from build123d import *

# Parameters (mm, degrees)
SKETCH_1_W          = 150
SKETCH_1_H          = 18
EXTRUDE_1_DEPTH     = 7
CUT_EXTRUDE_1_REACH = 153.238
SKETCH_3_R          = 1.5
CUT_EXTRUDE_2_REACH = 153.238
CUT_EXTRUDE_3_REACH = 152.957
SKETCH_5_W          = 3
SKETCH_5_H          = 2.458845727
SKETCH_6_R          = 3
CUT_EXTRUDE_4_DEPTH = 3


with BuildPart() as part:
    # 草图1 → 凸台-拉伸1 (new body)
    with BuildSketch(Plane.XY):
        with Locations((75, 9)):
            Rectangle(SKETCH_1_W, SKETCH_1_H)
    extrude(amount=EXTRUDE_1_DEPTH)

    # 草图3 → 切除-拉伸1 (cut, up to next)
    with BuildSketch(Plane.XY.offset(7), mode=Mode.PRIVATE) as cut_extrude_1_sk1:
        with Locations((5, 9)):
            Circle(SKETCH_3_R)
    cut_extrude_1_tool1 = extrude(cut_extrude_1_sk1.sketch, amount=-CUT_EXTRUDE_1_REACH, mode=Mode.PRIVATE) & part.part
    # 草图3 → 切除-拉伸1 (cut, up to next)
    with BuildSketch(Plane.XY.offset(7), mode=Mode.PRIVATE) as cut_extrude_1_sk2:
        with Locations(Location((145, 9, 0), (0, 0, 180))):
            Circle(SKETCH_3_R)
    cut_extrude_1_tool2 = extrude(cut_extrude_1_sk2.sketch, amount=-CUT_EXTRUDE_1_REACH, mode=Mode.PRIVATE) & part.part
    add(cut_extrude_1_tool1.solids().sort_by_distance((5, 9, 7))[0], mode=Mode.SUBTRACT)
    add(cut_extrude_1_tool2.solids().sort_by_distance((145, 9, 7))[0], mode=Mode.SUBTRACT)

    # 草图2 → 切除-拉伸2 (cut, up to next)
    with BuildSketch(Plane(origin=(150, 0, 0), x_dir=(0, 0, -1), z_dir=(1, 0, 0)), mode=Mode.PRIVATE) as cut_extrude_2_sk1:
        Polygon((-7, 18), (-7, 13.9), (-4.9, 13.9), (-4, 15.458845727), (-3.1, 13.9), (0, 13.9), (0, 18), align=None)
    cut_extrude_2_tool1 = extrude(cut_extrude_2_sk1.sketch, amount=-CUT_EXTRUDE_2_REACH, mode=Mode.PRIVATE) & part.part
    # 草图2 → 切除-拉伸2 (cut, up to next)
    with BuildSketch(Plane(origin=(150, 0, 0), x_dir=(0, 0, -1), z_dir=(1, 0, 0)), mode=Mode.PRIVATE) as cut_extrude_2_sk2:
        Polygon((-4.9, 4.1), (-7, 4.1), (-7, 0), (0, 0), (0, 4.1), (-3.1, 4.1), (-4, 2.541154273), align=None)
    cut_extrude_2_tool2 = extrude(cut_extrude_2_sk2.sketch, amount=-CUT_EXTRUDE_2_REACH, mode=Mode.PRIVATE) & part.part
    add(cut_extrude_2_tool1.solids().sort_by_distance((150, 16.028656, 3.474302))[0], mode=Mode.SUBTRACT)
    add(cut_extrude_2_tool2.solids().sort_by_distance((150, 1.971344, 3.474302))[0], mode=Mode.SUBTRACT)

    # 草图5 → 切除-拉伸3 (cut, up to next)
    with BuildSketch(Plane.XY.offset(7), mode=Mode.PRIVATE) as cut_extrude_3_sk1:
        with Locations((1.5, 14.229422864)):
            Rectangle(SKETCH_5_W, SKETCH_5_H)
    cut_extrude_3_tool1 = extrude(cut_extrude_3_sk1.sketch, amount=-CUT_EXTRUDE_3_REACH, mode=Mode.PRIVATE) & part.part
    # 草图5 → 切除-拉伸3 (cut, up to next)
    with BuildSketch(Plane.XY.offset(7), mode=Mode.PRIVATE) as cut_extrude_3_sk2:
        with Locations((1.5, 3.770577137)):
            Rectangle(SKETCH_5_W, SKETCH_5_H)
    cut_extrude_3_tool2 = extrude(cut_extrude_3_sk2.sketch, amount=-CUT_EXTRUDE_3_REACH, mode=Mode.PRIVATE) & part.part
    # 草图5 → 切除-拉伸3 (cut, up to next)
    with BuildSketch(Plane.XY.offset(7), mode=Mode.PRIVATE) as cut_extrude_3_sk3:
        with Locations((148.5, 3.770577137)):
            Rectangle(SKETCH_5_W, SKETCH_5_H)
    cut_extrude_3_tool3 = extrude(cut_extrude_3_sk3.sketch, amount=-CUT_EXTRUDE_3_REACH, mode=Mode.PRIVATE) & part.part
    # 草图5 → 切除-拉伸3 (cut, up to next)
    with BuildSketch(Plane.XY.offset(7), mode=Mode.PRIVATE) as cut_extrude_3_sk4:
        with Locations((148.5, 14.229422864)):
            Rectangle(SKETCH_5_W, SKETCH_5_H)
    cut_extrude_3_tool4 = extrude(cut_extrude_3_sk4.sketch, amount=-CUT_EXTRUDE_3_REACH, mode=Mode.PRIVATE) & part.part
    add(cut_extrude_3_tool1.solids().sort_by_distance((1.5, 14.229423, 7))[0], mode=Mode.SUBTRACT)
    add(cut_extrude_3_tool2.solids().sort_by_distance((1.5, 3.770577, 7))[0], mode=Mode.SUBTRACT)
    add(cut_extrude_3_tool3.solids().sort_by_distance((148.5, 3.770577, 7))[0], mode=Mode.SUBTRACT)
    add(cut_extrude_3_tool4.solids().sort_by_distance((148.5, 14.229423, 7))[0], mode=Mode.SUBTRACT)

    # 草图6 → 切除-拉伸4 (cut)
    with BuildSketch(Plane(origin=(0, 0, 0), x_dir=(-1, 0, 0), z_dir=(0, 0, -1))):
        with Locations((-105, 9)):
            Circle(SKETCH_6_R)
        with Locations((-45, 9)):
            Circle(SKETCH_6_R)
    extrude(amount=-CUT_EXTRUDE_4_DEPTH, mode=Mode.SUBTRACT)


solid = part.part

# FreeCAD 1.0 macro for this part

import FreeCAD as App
import Part
import Sketcher
Q = App.Units.Quantity


def add_polygon(sketch, points):
    """Adds a closed chain of lines whose ends are joined by coincident constraints."""
    first, n = sketch.GeometryCount, len(points)
    for a, b in zip(points, points[1:] + points[:1]):
        sketch.addGeometry(Part.LineSegment(App.Vector(*a, 0), App.Vector(*b, 0)), False)
    for i in range(n):
        sketch.addConstraint(Sketcher.Constraint("Coincident", first + i, 2, first + (i + 1) % n, 1))

doc = App.newDocument("Part")
params = doc.addObject("Spreadsheet::Sheet", "Params")
for row, (alias, value) in enumerate([
    ("sketch1_width", "150 mm"),
    ("sketch1_height", "18 mm"),
    ("pad1_length", "7 mm"),
    ("sketch2_diameter", "3 mm"),
    ("sketch3_diameter", "3 mm"),
    ("sketch4_height", "7 mm"),
    ("sketch4_width", "4.1 mm"),
    ("sketch4_height2", "2.1 mm"),
    ("sketch4_height3", "3.1 mm"),
    ("sketch5_height", "7 mm"),
    ("sketch5_width", "4.1 mm"),
    ("sketch5_height2", "2.1 mm"),
    ("sketch5_height3", "3.1 mm"),
    ("sketch6_width", "3 mm"),
    ("pocket5_length", "7 mm"),
    ("sketch7_width", "3 mm"),
    ("pocket6_length", "7 mm"),
    ("sketch8_width", "3 mm"),
    ("pocket7_length", "7 mm"),
    ("sketch9_width", "3 mm"),
    ("pocket8_length", "7 mm"),
    ("sketch10_diameter", "6 mm"),
    ("pocket9_length", "3 mm"),
], start=1):
    params.set(f"A{row}", alias)
    params.set(f"B{row}", "=" + value)
    params.setAlias(f"B{row}", alias)

body = doc.addObject("PartDesign::Body", "Body")

sketch1 = doc.addObject("Sketcher::SketchObject", "Sketch")
body.addObject(sketch1)
sketch1.AttachmentSupport = (doc.XY_Plane, [""])
sketch1.MapMode = "FlatFace"
add_polygon(sketch1, [(0, 18), (0, 0), (150, 0), (150, 18)])
sketch1.addConstraint(Sketcher.Constraint("Vertical", 0))
sketch1.addConstraint(Sketcher.Constraint("Horizontal", 1))
sketch1.addConstraint(Sketcher.Constraint("Vertical", 2))
sketch1.addConstraint(Sketcher.Constraint("Horizontal", 3))
sketch1.addConstraint(Sketcher.Constraint("Coincident", 0, 2, -1, 1))
sketch1.addConstraint(Sketcher.Constraint("DistanceX", 1, 1, 1, 2, 150.0))
sketch1.addConstraint(Sketcher.Constraint("DistanceY", 0, 2, 0, 1, 18.0))
sketch1.setExpression("Constraints[9]", "Params.sketch1_width")
sketch1.setExpression("Constraints[10]", "Params.sketch1_height")
pad1 = doc.addObject("PartDesign::Pad", "Pad")
body.addObject(pad1)
pad1.Profile = sketch1
pad1.setExpression("Length", "Params.pad1_length")

sketch2 = doc.addObject("Sketcher::SketchObject", "Sketch001")
body.addObject(sketch2)
sketch2.AttachmentSupport = (doc.XY_Plane, [""])
sketch2.MapMode = "FlatFace"
sketch2.AttachmentOffset = App.Placement(App.Vector(0, 0, 7), App.Rotation())
sketch2.addGeometry(Part.Circle(App.Vector(5, 9, 0), App.Vector(0, 0, 1), 1.5), False)
sketch2.addConstraint(Sketcher.Constraint("Diameter", 0, 3.0))
sketch2.addConstraint(Sketcher.Constraint("DistanceX", -1, 1, 0, 3, 5.0))
sketch2.addConstraint(Sketcher.Constraint("DistanceY", -1, 1, 0, 3, 9.0))
sketch2.setExpression("Constraints[0]", "Params.sketch2_diameter")
pocket1 = doc.addObject("PartDesign::Pocket", "Pocket")
body.addObject(pocket1)
pocket1.Profile = sketch2
pocket1.Type = "UpToFirst"

sketch3 = doc.addObject("Sketcher::SketchObject", "Sketch002")
body.addObject(sketch3)
sketch3.AttachmentSupport = (doc.XY_Plane, [""])
sketch3.MapMode = "FlatFace"
sketch3.AttachmentOffset = App.Placement(App.Vector(0, 0, 7), App.Rotation())
sketch3.addGeometry(Part.Circle(App.Vector(145, 9, 0), App.Vector(0, 0, 1), 1.5), False)
sketch3.addConstraint(Sketcher.Constraint("Diameter", 0, 3.0))
sketch3.addConstraint(Sketcher.Constraint("DistanceX", -1, 1, 0, 3, 145.0))
sketch3.addConstraint(Sketcher.Constraint("DistanceY", -1, 1, 0, 3, 9.0))
sketch3.setExpression("Constraints[0]", "Params.sketch3_diameter")
pocket2 = doc.addObject("PartDesign::Pocket", "Pocket001")
body.addObject(pocket2)
pocket2.Profile = sketch3
pocket2.Type = "UpToFirst"

sketch4 = doc.addObject("Sketcher::SketchObject", "Sketch003")
body.addObject(sketch4)
sketch4.AttachmentSupport = (doc.YZ_Plane, [""])
sketch4.MapMode = "FlatFace"
sketch4.AttachmentOffset = App.Placement(App.Vector(0, 0, 150), App.Rotation())
add_polygon(sketch4, [(18, 7), (13.9, 7), (13.9, 4.9), (15.5, 4), (13.9, 3.1), (13.9, 0), (18, 0)])
sketch4.addConstraint(Sketcher.Constraint("Horizontal", 0))
sketch4.addConstraint(Sketcher.Constraint("Vertical", 1))
sketch4.addConstraint(Sketcher.Constraint("Vertical", 4))
sketch4.addConstraint(Sketcher.Constraint("Horizontal", 5))
sketch4.addConstraint(Sketcher.Constraint("Vertical", 6))
sketch4.addConstraint(Sketcher.Constraint("PointOnObject", 4, 2, -1))
sketch4.addConstraint(Sketcher.Constraint("Vertical", 1, 2, 3, 2))
sketch4.addConstraint(Sketcher.Constraint("Equal", 2, 3))
sketch4.addConstraint(Sketcher.Constraint("DistanceY", 6, 1, 6, 2, 7.0))
sketch4.addConstraint(Sketcher.Constraint("Angle", 2, Q("-30 deg")))
sketch4.addConstraint(Sketcher.Constraint("DistanceX", 0, 2, 0, 1, 4.1))
sketch4.addConstraint(Sketcher.Constraint("DistanceY", 1, 2, 1, 1, 2.1))
sketch4.addConstraint(Sketcher.Constraint("DistanceY", 4, 2, 4, 1, 3.1))
sketch4.addConstraint(Sketcher.Constraint("DistanceX", -1, 1, 5, 2, 18.0))
sketch4.setExpression("Constraints[15]", "Params.sketch4_height")
sketch4.setExpression("Constraints[17]", "Params.sketch4_width")
sketch4.setExpression("Constraints[18]", "Params.sketch4_height2")
sketch4.setExpression("Constraints[19]", "Params.sketch4_height3")
pocket3 = doc.addObject("PartDesign::Pocket", "Pocket002")
body.addObject(pocket3)
pocket3.Profile = sketch4
pocket3.Type = "UpToFirst"

sketch5 = doc.addObject("Sketcher::SketchObject", "Sketch004")
body.addObject(sketch5)
sketch5.AttachmentSupport = (doc.YZ_Plane, [""])
sketch5.MapMode = "FlatFace"
sketch5.AttachmentOffset = App.Placement(App.Vector(0, 0, 150), App.Rotation())
add_polygon(sketch5, [(4.1, 4.9), (4.1, 7), (0, 7), (0, 0), (4.1, 0), (4.1, 3.1), (2.5, 4)])
sketch5.addConstraint(Sketcher.Constraint("Vertical", 0))
sketch5.addConstraint(Sketcher.Constraint("Horizontal", 1))
sketch5.addConstraint(Sketcher.Constraint("Vertical", 2))
sketch5.addConstraint(Sketcher.Constraint("Horizontal", 3))
sketch5.addConstraint(Sketcher.Constraint("Vertical", 4))
sketch5.addConstraint(Sketcher.Constraint("Coincident", 2, 2, -1, 1))
sketch5.addConstraint(Sketcher.Constraint("Vertical", 0, 2, 3, 2))
sketch5.addConstraint(Sketcher.Constraint("Equal", 5, 6))
sketch5.addConstraint(Sketcher.Constraint("DistanceY", 2, 2, 2, 1, 7.0))
sketch5.addConstraint(Sketcher.Constraint("Angle", 5, Q("150 deg")))
sketch5.addConstraint(Sketcher.Constraint("DistanceX", 1, 2, 1, 1, 4.1))
sketch5.addConstraint(Sketcher.Constraint("DistanceY", 0, 1, 0, 2, 2.1))
sketch5.addConstraint(Sketcher.Constraint("DistanceY", 4, 1, 4, 2, 3.1))
sketch5.setExpression("Constraints[15]", "Params.sketch5_height")
sketch5.setExpression("Constraints[17]", "Params.sketch5_width")
sketch5.setExpression("Constraints[18]", "Params.sketch5_height2")
sketch5.setExpression("Constraints[19]", "Params.sketch5_height3")
pocket4 = doc.addObject("PartDesign::Pocket", "Pocket003")
body.addObject(pocket4)
pocket4.Profile = sketch5
pocket4.Type = "UpToFirst"

sketch6 = doc.addObject("Sketcher::SketchObject", "Sketch005")
body.addObject(sketch6)
sketch6.AttachmentSupport = (doc.XY_Plane, [""])
sketch6.MapMode = "FlatFace"
sketch6.AttachmentOffset = App.Placement(App.Vector(0, 0, 7), App.Rotation())
add_polygon(sketch6, [(0, 15.5), (0, 13), (3, 13), (3, 15.5)])
sketch6.addConstraint(Sketcher.Constraint("Vertical", 0))
sketch6.addConstraint(Sketcher.Constraint("Horizontal", 1))
sketch6.addConstraint(Sketcher.Constraint("Vertical", 2))
sketch6.addConstraint(Sketcher.Constraint("Horizontal", 3))
sketch6.addConstraint(Sketcher.Constraint("PointOnObject", 0, 2, -2))
sketch6.addConstraint(Sketcher.Constraint("DistanceX", 1, 1, 1, 2, 3.0))
sketch6.addConstraint(Sketcher.Constraint("DistanceY", -1, 1, 0, 2, 13.0))
sketch6.addConstraint(Sketcher.Constraint("DistanceY", 0, 2, 0, 1, 2.458846))
sketch6.setExpression("Constraints[9]", "Params.sketch6_width")
pocket5 = doc.addObject("PartDesign::Pocket", "Pocket004")
body.addObject(pocket5)
pocket5.Profile = sketch6
pocket5.setExpression("Length", "Params.pocket5_length")

sketch7 = doc.addObject("Sketcher::SketchObject", "Sketch006")
body.addObject(sketch7)
sketch7.AttachmentSupport = (doc.XY_Plane, [""])
sketch7.MapMode = "FlatFace"
sketch7.AttachmentOffset = App.Placement(App.Vector(0, 0, 7), App.Rotation())
add_polygon(sketch7, [(0, 5), (0, 2.5), (3, 2.5), (3, 5)])
sketch7.addConstraint(Sketcher.Constraint("Vertical", 0))
sketch7.addConstraint(Sketcher.Constraint("Horizontal", 1))
sketch7.addConstraint(Sketcher.Constraint("Vertical", 2))
sketch7.addConstraint(Sketcher.Constraint("Horizontal", 3))
sketch7.addConstraint(Sketcher.Constraint("PointOnObject", 0, 2, -2))
sketch7.addConstraint(Sketcher.Constraint("DistanceX", 1, 1, 1, 2, 3.0))
sketch7.addConstraint(Sketcher.Constraint("DistanceY", -1, 1, 2, 2, 5.0))
sketch7.addConstraint(Sketcher.Constraint("DistanceY", 0, 2, 0, 1, 2.458846))
sketch7.setExpression("Constraints[9]", "Params.sketch7_width")
pocket6 = doc.addObject("PartDesign::Pocket", "Pocket005")
body.addObject(pocket6)
pocket6.Profile = sketch7
pocket6.setExpression("Length", "Params.pocket6_length")

sketch8 = doc.addObject("Sketcher::SketchObject", "Sketch007")
body.addObject(sketch8)
sketch8.AttachmentSupport = (doc.XY_Plane, [""])
sketch8.MapMode = "FlatFace"
sketch8.AttachmentOffset = App.Placement(App.Vector(0, 0, 7), App.Rotation())
add_polygon(sketch8, [(147, 5), (147, 2.5), (150, 2.5), (150, 5)])
sketch8.addConstraint(Sketcher.Constraint("Vertical", 0))
sketch8.addConstraint(Sketcher.Constraint("Horizontal", 1))
sketch8.addConstraint(Sketcher.Constraint("Vertical", 2))
sketch8.addConstraint(Sketcher.Constraint("Horizontal", 3))
sketch8.addConstraint(Sketcher.Constraint("DistanceX", 1, 1, 1, 2, 3.0))
sketch8.addConstraint(Sketcher.Constraint("DistanceX", -1, 1, 0, 2, 147.0))
sketch8.addConstraint(Sketcher.Constraint("DistanceY", -1, 1, 2, 2, 5.0))
sketch8.addConstraint(Sketcher.Constraint("DistanceY", 0, 2, 0, 1, 2.458846))
sketch8.setExpression("Constraints[8]", "Params.sketch8_width")
pocket7 = doc.addObject("PartDesign::Pocket", "Pocket006")
body.addObject(pocket7)
pocket7.Profile = sketch8
pocket7.setExpression("Length", "Params.pocket7_length")

sketch9 = doc.addObject("Sketcher::SketchObject", "Sketch008")
body.addObject(sketch9)
sketch9.AttachmentSupport = (doc.XY_Plane, [""])
sketch9.MapMode = "FlatFace"
sketch9.AttachmentOffset = App.Placement(App.Vector(0, 0, 7), App.Rotation())
add_polygon(sketch9, [(147, 15.5), (147, 13), (150, 13), (150, 15.5)])
sketch9.addConstraint(Sketcher.Constraint("Vertical", 0))
sketch9.addConstraint(Sketcher.Constraint("Horizontal", 1))
sketch9.addConstraint(Sketcher.Constraint("Vertical", 2))
sketch9.addConstraint(Sketcher.Constraint("Horizontal", 3))
sketch9.addConstraint(Sketcher.Constraint("DistanceX", 1, 1, 1, 2, 3.0))
sketch9.addConstraint(Sketcher.Constraint("DistanceX", -1, 1, 0, 2, 147.0))
sketch9.addConstraint(Sketcher.Constraint("DistanceY", -1, 1, 0, 2, 13.0))
sketch9.addConstraint(Sketcher.Constraint("DistanceY", 0, 2, 0, 1, 2.458846))
sketch9.setExpression("Constraints[8]", "Params.sketch9_width")
pocket8 = doc.addObject("PartDesign::Pocket", "Pocket007")
body.addObject(pocket8)
pocket8.Profile = sketch9
pocket8.setExpression("Length", "Params.pocket8_length")

sketch10 = doc.addObject("Sketcher::SketchObject", "Sketch009")
body.addObject(sketch10)
sketch10.AttachmentSupport = (doc.XY_Plane, [""])
sketch10.MapMode = "FlatFace"
sketch10.addGeometry(Part.Circle(App.Vector(105, 9, 0), App.Vector(0, 0, 1), 3), False)
sketch10.addGeometry(Part.Circle(App.Vector(45, 9, 0), App.Vector(0, 0, 1), 3), False)
sketch10.addConstraint(Sketcher.Constraint("Equal", 0, 1))
sketch10.addConstraint(Sketcher.Constraint("Horizontal", 0, 3, 1, 3))
sketch10.addConstraint(Sketcher.Constraint("Diameter", 0, 6.0))
sketch10.addConstraint(Sketcher.Constraint("DistanceX", -1, 1, 0, 3, 105.0))
sketch10.addConstraint(Sketcher.Constraint("DistanceY", -1, 1, 0, 3, 9.0))
sketch10.addConstraint(Sketcher.Constraint("DistanceX", -1, 1, 1, 3, 45.0))
sketch10.setExpression("Constraints[2]", "Params.sketch10_diameter")
pocket9 = doc.addObject("PartDesign::Pocket", "Pocket008")
body.addObject(pocket9)
pocket9.Profile = sketch10
pocket9.setExpression("Length", "Params.pocket9_length")
pocket9.Reversed = True

doc.recompute()
